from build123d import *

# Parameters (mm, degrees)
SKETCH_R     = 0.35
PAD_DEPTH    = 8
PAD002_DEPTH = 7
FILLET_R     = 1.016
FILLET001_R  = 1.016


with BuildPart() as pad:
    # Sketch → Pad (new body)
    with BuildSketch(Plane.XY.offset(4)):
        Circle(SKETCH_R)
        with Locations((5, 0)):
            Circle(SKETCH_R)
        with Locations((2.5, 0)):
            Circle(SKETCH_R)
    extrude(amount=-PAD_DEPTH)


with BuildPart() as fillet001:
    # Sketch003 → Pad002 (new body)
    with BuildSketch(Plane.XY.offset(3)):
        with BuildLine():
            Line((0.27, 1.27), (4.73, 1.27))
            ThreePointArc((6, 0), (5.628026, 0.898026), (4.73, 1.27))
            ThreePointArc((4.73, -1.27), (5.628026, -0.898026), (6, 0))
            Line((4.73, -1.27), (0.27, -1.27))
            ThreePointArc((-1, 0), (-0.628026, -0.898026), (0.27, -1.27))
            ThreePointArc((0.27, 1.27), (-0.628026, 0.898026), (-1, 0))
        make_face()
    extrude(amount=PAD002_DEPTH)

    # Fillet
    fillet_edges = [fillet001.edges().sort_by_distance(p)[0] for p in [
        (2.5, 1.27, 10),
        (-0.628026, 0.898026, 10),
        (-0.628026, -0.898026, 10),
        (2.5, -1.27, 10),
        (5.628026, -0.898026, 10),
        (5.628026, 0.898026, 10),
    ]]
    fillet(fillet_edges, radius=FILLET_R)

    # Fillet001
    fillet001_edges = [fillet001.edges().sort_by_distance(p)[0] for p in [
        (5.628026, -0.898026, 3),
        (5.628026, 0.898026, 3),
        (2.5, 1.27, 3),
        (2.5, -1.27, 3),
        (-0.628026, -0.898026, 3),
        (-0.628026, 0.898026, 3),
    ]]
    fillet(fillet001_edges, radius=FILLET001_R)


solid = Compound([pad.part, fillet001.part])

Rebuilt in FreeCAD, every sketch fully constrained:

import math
import FreeCAD as App
import Part
import Sketcher
from FreeCAD import Vector
Q = App.Units.Quantity


def edges_at(feature, points):
    """Names of the edges that pass closest to the given points."""
    edges = feature.Shape.Edges
    near = lambda p: min(range(len(edges)), key=lambda i: edges[i].distToShape(Part.Vertex(*p))[0])
    return sorted({f"Edge{near(p) + 1}" for p in points})

doc = App.newDocument("Part")
body = doc.addObject("PartDesign::Body", "Body")
body.AllowCompound = True

# Sketch on XY plane
sketch1 = body.newObject("Sketcher::SketchObject", "Sketch")
sketch1.AttachmentSupport = (doc.getObject("XY_Plane"), [""])
sketch1.MapMode = "FlatFace"
sketch1.AttachmentOffset = App.Placement(Vector(0, 0, 4), App.Rotation())
sketch1.addGeometry(Part.Circle(Vector(0, 0, 0), Vector(0, 0, 1), 0.35), False)
sketch1.addGeometry(Part.Circle(Vector(5, 0, 0), Vector(0, 0, 1), 0.35), False)
sketch1.addGeometry(Part.Circle(Vector(2.5, 0, 0), Vector(0, 0, 1), 0.35), False)
sketch1.addConstraint(Sketcher.Constraint("Coincident", 0, 3, -1, 1))
sketch1.addConstraint(Sketcher.Constraint("Equal", 0, 1))
sketch1.addConstraint(Sketcher.Constraint("Equal", 1, 2))
sketch1.addConstraint(Sketcher.Constraint("PointOnObject", 1, 3, -1))
sketch1.addConstraint(Sketcher.Constraint("PointOnObject", 2, 3, -1))
sketch1.addConstraint(Sketcher.Constraint("Diameter", 0, Q("0.7 mm")))
sketch1.addConstraint(Sketcher.Constraint("DistanceX", -1, 1, 1, 3, Q("5 mm")))
sketch1.addConstraint(Sketcher.Constraint("DistanceX", -1, 1, 2, 3, Q("2.5 mm")))
pad1 = body.newObject("PartDesign::Pad", "Pad")
pad1.Profile = sketch1
pad1.Length = 8
pad1.Reversed = True
body2 = doc.addObject("PartDesign::Body", "Body001")

# Sketch on XY plane
sketch2 = body2.newObject("Sketcher::SketchObject", "Sketch001")
sketch2.AttachmentSupport = (doc.getObject("XY_Plane001"), [""])
sketch2.MapMode = "FlatFace"
sketch2.AttachmentOffset = App.Placement(Vector(0, 0, 3), App.Rotation())
sketch2.addGeometry(Part.LineSegment(Vector(4.73, 1.27, 0), Vector(0.27, 1.27, 0)), False)
sketch2.addGeometry(Part.ArcOfCircle(Part.Circle(Vector(0.269999, 0.000001, 0), Vector(0, 0, 1), 1.269999), math.radians(89.99994), math.radians(180.00006)), False)
sketch2.addGeometry(Part.ArcOfCircle(Part.Circle(Vector(0.269999, -0.000001, 0), Vector(0, 0, 1), 1.269999), math.radians(179.99994), math.radians(270.00006)), False)
sketch2.addGeometry(Part.LineSegment(Vector(0.27, -1.27, 0), Vector(4.73, -1.27, 0)), False)
sketch2.addGeometry(Part.ArcOfCircle(Part.Circle(Vector(4.730001, -0.000001, 0), Vector(0, 0, 1), 1.269999), math.radians(-90.00006), math.radians(0.00006)), False)
sketch2.addGeometry(Part.ArcOfCircle(Part.Circle(Vector(4.730001, 0.000001, 0), Vector(0, 0, 1), 1.269999), math.radians(-0.00006), math.radians(90.00006)), False)
sketch2.addConstraint(Sketcher.Constraint("Tangent", 0, 2, 1, 1))
sketch2.addConstraint(Sketcher.Constraint("Coincident", 1, 2, 2, 1))
sketch2.addConstraint(Sketcher.Constraint("Tangent", 2, 2, 3, 1))
sketch2.addConstraint(Sketcher.Constraint("Tangent", 3, 2, 4, 1))
sketch2.addConstraint(Sketcher.Constraint("Coincident", 4, 2, 5, 1))
sketch2.addConstraint(Sketcher.Constraint("Tangent", 5, 2, 0, 1))
sketch2.addConstraint(Sketcher.Constraint("Horizontal", 0))
sketch2.addConstraint(Sketcher.Constraint("Horizontal", 3))
sketch2.addConstraint(Sketcher.Constraint("Coincident", 2, 3, 1, 3))
sketch2.addConstraint(Sketcher.Constraint("Coincident", 5, 3, 4, 3))
sketch2.addConstraint(Sketcher.Constraint("PointOnObject", 1, 3, -1))
sketch2.addConstraint(Sketcher.Constraint("PointOnObject", 1, 2, -1))
sketch2.addConstraint(Sketcher.Constraint("PointOnObject", 4, 2, -1))
sketch2.addConstraint(Sketcher.Constraint("Radius", 1, Q("1.269999 mm")))
sketch2.addConstraint(Sketcher.Constraint("DistanceX", 1, 2, -1, 1, Q("1 mm")))
sketch2.addConstraint(Sketcher.Constraint("DistanceX", -1, 1, 4, 2, Q("6 mm")))
pad2 = body2.newObject("PartDesign::Pad", "Pad001")
pad2.Profile = sketch2
pad2.Length = 7
doc.recompute()

fillet = body2.newObject("PartDesign::Fillet", "Fillet")
fillet.Base = (pad2, edges_at(pad2, [
    (2.5, 1.27, 10),
    (-0.628, 0.898, 10),
    (-0.628, -0.898, 10),
    (2.5, -1.27, 10),
    (5.628, -0.898, 10),
    (5.628, 0.898, 10),
]))
fillet.Radius = 1.016
doc.recompute()

fillet2 = body2.newObject("PartDesign::Fillet", "Fillet001")
fillet2.Base = (fillet, edges_at(fillet, [
    (5.628, -0.898, 3),
    (5.628, 0.898, 3),
    (2.5, 1.27, 3),
    (2.5, -1.27, 3),
    (-0.628, -0.898, 3),
    (-0.628, 0.898, 3),
]))
fillet2.Radius = 1.016

doc.recompute()
